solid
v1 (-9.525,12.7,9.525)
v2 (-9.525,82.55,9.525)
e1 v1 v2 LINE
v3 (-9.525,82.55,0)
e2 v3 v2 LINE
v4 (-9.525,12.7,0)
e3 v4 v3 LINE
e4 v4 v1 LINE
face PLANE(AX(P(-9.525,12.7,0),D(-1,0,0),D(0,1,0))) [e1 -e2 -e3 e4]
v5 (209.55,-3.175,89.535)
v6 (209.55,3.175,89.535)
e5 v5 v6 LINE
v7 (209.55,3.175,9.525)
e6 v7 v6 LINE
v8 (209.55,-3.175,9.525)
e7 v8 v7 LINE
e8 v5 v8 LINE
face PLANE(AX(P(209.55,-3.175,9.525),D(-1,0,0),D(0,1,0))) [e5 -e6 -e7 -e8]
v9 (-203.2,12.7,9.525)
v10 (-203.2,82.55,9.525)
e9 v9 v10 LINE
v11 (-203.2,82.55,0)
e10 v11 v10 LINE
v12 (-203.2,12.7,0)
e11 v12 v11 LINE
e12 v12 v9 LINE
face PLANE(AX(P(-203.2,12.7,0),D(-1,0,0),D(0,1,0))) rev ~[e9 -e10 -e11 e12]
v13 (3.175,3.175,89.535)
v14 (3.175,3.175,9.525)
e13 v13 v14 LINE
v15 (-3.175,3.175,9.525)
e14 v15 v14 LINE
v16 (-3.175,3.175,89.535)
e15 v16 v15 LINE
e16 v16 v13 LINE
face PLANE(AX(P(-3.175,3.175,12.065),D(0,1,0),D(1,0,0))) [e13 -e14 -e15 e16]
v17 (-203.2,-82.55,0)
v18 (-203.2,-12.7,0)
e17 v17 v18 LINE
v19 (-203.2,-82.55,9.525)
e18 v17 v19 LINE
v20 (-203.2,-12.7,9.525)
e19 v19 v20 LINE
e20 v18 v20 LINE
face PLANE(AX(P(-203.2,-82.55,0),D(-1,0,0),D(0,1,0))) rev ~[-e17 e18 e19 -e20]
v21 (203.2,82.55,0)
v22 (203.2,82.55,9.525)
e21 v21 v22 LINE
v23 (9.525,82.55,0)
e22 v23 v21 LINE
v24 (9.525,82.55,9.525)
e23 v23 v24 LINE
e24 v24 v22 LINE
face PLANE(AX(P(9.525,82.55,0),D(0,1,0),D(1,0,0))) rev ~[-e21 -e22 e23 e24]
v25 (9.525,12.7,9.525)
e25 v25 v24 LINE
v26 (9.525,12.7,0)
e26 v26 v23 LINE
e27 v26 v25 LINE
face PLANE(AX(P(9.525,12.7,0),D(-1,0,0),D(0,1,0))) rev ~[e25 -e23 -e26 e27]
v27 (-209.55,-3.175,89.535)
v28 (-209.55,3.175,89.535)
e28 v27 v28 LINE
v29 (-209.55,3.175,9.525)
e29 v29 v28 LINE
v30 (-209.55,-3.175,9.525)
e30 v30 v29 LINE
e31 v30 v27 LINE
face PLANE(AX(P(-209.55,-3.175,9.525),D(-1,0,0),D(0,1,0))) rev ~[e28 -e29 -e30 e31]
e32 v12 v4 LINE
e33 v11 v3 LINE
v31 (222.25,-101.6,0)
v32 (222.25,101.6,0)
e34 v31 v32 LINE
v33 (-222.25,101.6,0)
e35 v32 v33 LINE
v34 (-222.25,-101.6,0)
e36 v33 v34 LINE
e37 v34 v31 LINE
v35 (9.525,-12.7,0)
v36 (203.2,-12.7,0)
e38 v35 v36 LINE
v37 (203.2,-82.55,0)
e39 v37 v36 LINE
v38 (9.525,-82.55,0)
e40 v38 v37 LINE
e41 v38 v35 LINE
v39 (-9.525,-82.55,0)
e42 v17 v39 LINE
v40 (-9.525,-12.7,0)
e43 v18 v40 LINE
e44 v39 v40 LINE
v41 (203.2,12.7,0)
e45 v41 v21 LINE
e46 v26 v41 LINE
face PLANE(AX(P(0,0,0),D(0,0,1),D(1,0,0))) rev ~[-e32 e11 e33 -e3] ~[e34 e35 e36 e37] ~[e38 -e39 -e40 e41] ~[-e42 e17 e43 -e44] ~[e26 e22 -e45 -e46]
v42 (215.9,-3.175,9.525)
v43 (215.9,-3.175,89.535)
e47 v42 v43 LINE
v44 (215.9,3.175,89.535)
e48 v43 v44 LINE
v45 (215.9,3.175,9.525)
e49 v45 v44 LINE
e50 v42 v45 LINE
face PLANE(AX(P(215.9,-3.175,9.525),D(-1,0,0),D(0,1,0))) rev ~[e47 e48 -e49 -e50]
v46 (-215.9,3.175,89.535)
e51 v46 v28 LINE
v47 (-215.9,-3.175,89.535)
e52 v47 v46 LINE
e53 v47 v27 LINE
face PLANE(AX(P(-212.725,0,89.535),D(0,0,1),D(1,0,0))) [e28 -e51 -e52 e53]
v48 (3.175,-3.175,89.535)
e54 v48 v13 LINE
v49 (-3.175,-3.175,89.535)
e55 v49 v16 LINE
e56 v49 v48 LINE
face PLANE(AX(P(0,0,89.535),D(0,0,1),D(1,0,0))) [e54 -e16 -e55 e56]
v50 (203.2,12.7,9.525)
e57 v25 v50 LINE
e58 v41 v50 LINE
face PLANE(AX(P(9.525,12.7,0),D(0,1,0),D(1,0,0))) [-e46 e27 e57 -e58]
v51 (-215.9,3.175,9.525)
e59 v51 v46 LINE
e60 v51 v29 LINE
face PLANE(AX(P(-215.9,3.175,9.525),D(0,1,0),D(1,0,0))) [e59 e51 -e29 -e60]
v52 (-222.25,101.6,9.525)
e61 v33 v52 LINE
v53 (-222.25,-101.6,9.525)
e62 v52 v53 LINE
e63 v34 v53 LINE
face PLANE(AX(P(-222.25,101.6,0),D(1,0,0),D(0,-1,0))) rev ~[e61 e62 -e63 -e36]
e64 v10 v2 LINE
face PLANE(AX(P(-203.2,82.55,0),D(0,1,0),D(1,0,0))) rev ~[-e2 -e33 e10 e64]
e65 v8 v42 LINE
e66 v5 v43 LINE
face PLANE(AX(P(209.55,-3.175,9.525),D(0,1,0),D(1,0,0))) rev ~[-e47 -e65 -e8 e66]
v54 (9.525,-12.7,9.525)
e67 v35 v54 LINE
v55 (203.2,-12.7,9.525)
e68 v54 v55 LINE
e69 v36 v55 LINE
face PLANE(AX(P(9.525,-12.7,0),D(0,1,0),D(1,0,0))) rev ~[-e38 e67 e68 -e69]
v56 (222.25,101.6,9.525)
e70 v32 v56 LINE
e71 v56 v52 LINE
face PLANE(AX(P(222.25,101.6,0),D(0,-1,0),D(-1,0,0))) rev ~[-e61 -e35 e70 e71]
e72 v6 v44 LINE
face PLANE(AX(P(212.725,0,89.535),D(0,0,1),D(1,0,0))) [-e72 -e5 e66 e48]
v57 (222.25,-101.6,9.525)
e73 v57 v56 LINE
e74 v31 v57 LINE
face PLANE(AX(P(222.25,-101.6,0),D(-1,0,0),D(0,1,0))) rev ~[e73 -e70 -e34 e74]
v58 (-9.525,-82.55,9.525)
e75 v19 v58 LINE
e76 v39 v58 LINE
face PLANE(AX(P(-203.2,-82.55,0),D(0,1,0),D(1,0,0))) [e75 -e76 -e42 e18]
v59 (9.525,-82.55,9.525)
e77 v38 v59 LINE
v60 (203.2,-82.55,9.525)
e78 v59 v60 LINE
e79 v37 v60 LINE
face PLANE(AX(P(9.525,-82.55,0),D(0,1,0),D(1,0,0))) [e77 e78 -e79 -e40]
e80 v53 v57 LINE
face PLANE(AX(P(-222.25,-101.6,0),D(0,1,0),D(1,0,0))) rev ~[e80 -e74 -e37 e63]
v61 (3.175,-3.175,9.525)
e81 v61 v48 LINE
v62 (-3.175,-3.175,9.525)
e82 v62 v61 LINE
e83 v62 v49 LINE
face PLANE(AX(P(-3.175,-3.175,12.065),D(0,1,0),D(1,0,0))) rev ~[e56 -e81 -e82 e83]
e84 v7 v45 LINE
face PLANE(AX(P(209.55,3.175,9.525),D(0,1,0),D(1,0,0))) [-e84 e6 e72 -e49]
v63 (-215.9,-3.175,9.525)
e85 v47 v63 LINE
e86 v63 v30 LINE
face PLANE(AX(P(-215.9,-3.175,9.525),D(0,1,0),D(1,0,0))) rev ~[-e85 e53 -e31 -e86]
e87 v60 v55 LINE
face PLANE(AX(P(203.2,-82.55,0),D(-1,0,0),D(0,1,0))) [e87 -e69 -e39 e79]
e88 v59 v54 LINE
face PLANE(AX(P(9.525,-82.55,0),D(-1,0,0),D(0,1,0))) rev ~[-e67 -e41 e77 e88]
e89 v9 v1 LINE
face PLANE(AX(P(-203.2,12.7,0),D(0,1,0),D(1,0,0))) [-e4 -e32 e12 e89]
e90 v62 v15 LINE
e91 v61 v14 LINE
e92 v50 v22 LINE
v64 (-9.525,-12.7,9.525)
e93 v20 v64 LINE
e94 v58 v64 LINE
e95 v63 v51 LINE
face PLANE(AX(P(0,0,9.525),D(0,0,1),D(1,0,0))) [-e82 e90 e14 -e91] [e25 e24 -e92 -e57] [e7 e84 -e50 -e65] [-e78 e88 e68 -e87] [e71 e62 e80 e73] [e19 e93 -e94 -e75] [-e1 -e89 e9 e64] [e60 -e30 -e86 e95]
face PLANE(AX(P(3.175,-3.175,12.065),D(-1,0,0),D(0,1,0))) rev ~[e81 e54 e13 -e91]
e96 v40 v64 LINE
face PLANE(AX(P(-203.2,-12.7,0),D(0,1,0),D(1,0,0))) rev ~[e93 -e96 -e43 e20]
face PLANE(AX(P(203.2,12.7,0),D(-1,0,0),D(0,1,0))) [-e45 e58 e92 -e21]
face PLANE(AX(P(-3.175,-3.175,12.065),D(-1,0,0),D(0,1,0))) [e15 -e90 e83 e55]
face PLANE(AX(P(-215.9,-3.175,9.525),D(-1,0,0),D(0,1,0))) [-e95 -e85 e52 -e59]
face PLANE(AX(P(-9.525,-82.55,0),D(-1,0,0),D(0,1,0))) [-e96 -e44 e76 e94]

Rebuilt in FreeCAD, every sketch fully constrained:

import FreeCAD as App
import Part
import Sketcher

V = App.Vector
Q = App.Units.Quantity

doc = App.newDocument("Part")
body = doc.addObject("PartDesign::Body", "Body")

sketch1 = body.newObject("Sketcher::SketchObject", "Sketch")
sketch1.AttachmentSupport = (doc.getObject("XY_Plane"), [""])
sketch1.MapMode = "FlatFace"
sketch1.addGeometry([
    Part.LineSegment(V(222.25, -101.6, 0), V(222.25, 101.6, 0)),
    Part.LineSegment(V(222.25, 101.6, 0), V(-222.25, 101.6, 0)),
    Part.LineSegment(V(-222.25, 101.6, 0), V(-222.25, -101.6, 0)),
    Part.LineSegment(V(-222.25, -101.6, 0), V(222.25, -101.6, 0)),
    Part.LineSegment(V(-9.525, -82.55, 0), V(-203.2, -82.55, 0)),
    Part.LineSegment(V(-203.2, -82.55, 0), V(-203.2, -12.7, 0)),
    Part.LineSegment(V(-203.2, -12.7, 0), V(-9.525, -12.7, 0)),
    Part.LineSegment(V(-9.525, -12.7, 0), V(-9.525, -82.55, 0)),
    Part.LineSegment(V(203.2, -82.55, 0), V(9.525, -82.55, 0)),
    Part.LineSegment(V(9.525, -82.55, 0), V(9.525, -12.7, 0)),
    Part.LineSegment(V(9.525, -12.7, 0), V(203.2, -12.7, 0)),
    Part.LineSegment(V(203.2, -12.7, 0), V(203.2, -82.55, 0)),
    Part.LineSegment(V(-9.525, 12.7, 0), V(-203.2, 12.7, 0)),
    Part.LineSegment(V(-203.2, 12.7, 0), V(-203.2, 82.55, 0)),
    Part.LineSegment(V(-203.2, 82.55, 0), V(-9.525, 82.55, 0)),
    Part.LineSegment(V(-9.525, 82.55, 0), V(-9.525, 12.7, 0)),
    Part.LineSegment(V(203.2, 12.7, 0), V(9.525, 12.7, 0)),
    Part.LineSegment(V(9.525, 12.7, 0), V(9.525, 82.55, 0)),
    Part.LineSegment(V(9.525, 82.55, 0), V(203.2, 82.55, 0)),
    Part.LineSegment(V(203.2, 82.55, 0), V(203.2, 12.7, 0)),
], False)
sketch1.addConstraint([
    Sketcher.Constraint("Coincident", 0, 2, 1, 1),
    Sketcher.Constraint("Coincident", 1, 2, 2, 1),
    Sketcher.Constraint("Coincident", 2, 2, 3, 1),
    Sketcher.Constraint("Coincident", 3, 2, 0, 1),
    Sketcher.Constraint("Coincident", 4, 2, 5, 1),
    Sketcher.Constraint("Coincident", 5, 2, 6, 1),
    Sketcher.Constraint("Coincident", 6, 2, 7, 1),
    Sketcher.Constraint("Coincident", 7, 2, 4, 1),
    Sketcher.Constraint("Coincident", 8, 2, 9, 1),
    Sketcher.Constraint("Coincident", 9, 2, 10, 1),
    Sketcher.Constraint("Coincident", 10, 2, 11, 1),
    Sketcher.Constraint("Coincident", 11, 2, 8, 1),
    Sketcher.Constraint("Coincident", 12, 2, 13, 1),
    Sketcher.Constraint("Coincident", 13, 2, 14, 1),
    Sketcher.Constraint("Coincident", 14, 2, 15, 1),
    Sketcher.Constraint("Coincident", 15, 2, 12, 1),
    Sketcher.Constraint("Coincident", 16, 2, 17, 1),
    Sketcher.Constraint("Coincident", 17, 2, 18, 1),
    Sketcher.Constraint("Coincident", 18, 2, 19, 1),
    Sketcher.Constraint("Coincident", 19, 2, 16, 1),
    Sketcher.Constraint("Vertical", 0),
    Sketcher.Constraint("Horizontal", 1),
    Sketcher.Constraint("Vertical", 2),
    Sketcher.Constraint("Horizontal", 3),
    Sketcher.Constraint("Horizontal", 4),
    Sketcher.Constraint("Vertical", 5),
    Sketcher.Constraint("Horizontal", 6),
    Sketcher.Constraint("Vertical", 7),
    Sketcher.Constraint("Horizontal", 8),
    Sketcher.Constraint("Vertical", 9),
    Sketcher.Constraint("Horizontal", 10),
    Sketcher.Constraint("Vertical", 11),
    Sketcher.Constraint("Horizontal", 12),
    Sketcher.Constraint("Vertical", 13),
    Sketcher.Constraint("Horizontal", 14),
    Sketcher.Constraint("Vertical", 15),
    Sketcher.Constraint("Horizontal", 16),
    Sketcher.Constraint("Vertical", 17),
    Sketcher.Constraint("Horizontal", 18),
    Sketcher.Constraint("Vertical", 19),
    Sketcher.Constraint("Symmetric", 0, 2, 2, 2, -1, 1),
    Sketcher.Constraint("Symmetric", 10, 2, 12, 2, -1, 1),
    Sketcher.Constraint("Symmetric", 8, 2, 14, 2, -1, 1),
    Sketcher.Constraint("Symmetric", 6, 2, 16, 2, -1, 1),
    Sketcher.Constraint("Symmetric", 4, 2, 18, 2, -1, 1),
    Sketcher.Constraint("Symmetric", 7, 2, 8, 2, -2),
    Sketcher.Constraint("Symmetric", 5, 2, 10, 2, -2),
    Sketcher.Constraint("DistanceY", 0, 1, 0, 2, Q("8 in")),
    Sketcher.Constraint("DistanceX", 1, 2, 1, 1, Q("17.5 in")),
    Sketcher.Constraint("DistanceX", 4, 2, -1, 1, Q("8 in")),
    Sketcher.Constraint("DistanceY", 5, 2, 12, 2, Q("1 in")),
    Sketcher.Constraint("DistanceY", 5, 1, 5, 2, Q("2.75 in")),
    Sketcher.Constraint("DistanceX", 4, 2, 4, 1, Q("7.625 in")),
])
pad1 = body.newObject("PartDesign::Pad", "Pad")
pad1.Profile = sketch1
pad1.Length = Q("0.375 in")

sketch2 = body.newObject("Sketcher::SketchObject", "Sketch001")
sketch2.AttachmentSupport = (doc.getObject("XY_Plane"), [""])
sketch2.MapMode = "FlatFace"
sketch2.AttachmentOffset = App.Placement(V(0, 0, 0.375 * 25.4), App.Rotation())
sketch2.addGeometry([
    Part.LineSegment(V(-215.9, 3.175, 0), V(-215.9, -3.175, 0)),
    Part.LineSegment(V(-215.9, -3.175, 0), V(-209.55, -3.175, 0)),
    Part.LineSegment(V(-209.55, -3.175, 0), V(-209.55, 3.175, 0)),
    Part.LineSegment(V(-209.55, 3.175, 0), V(-215.9, 3.175, 0)),
    Part.LineSegment(V(209.55, 3.175, 0), V(209.55, -3.175, 0)),
    Part.LineSegment(V(209.55, -3.175, 0), V(215.9, -3.175, 0)),
    Part.LineSegment(V(215.9, -3.175, 0), V(215.9, 3.175, 0)),
    Part.LineSegment(V(215.9, 3.175, 0), V(209.55, 3.175, 0)),
    Part.LineSegment(V(-3.175, 3.175, 0), V(-3.175, -3.175, 0)),
    Part.LineSegment(V(-3.175, -3.175, 0), V(3.175, -3.175, 0)),
    Part.LineSegment(V(3.175, -3.175, 0), V(3.175, 3.175, 0)),
    Part.LineSegment(V(3.175, 3.175, 0), V(-3.175, 3.175, 0)),
], False)
sketch2.addConstraint([
    Sketcher.Constraint("Coincident", 0, 2, 1, 1),
    Sketcher.Constraint("Coincident", 1, 2, 2, 1),
    Sketcher.Constraint("Coincident", 2, 2, 3, 1),
    Sketcher.Constraint("Coincident", 3, 2, 0, 1),
    Sketcher.Constraint("Coincident", 4, 2, 5, 1),
    Sketcher.Constraint("Coincident", 5, 2, 6, 1),
    Sketcher.Constraint("Coincident", 6, 2, 7, 1),
    Sketcher.Constraint("Coincident", 7, 2, 4, 1),
    Sketcher.Constraint("Coincident", 8, 2, 9, 1),
    Sketcher.Constraint("Coincident", 9, 2, 10, 1),
    Sketcher.Constraint("Coincident", 10, 2, 11, 1),
    Sketcher.Constraint("Coincident", 11, 2, 8, 1),
    Sketcher.Constraint("Vertical", 0),
    Sketcher.Constraint("Horizontal", 1),
    Sketcher.Constraint("Vertical", 2),
    Sketcher.Constraint("Horizontal", 3),
    Sketcher.Constraint("Vertical", 4),
    Sketcher.Constraint("Horizontal", 5),
    Sketcher.Constraint("Vertical", 6),
    Sketcher.Constraint("Horizontal", 7),
    Sketcher.Constraint("Vertical", 8),
    Sketcher.Constraint("Horizontal", 9),
    Sketcher.Constraint("Vertical", 10),
    Sketcher.Constraint("Horizontal", 11),
    Sketcher.Constraint("Symmetric", 2, 2, 4, 2, -1, 1),
    Sketcher.Constraint("Symmetric", 0, 2, 6, 2, -1, 1),
    Sketcher.Constraint("Symmetric", 8, 2, 10, 2, -1, 1),
    Sketcher.Constraint("Horizontal", 1, 2, 4, 2),
    Sketcher.Constraint("Horizontal", 5, 2, 8, 2),
    Sketcher.Constraint("Equal", 7, 9),
    Sketcher.Constraint("Equal", 11, 0),
    Sketcher.Constraint("DistanceX", 0, 2, 5, 2, Q("17 in")),
    Sketcher.Constraint("DistanceX", 1, 1, 1, 2, Q("0.25 in")),
])
pad2 = body.newObject("PartDesign::Pad", "Pad001")
pad2.Profile = sketch2
pad2.Length = Q("0.1 in")

sketch3 = body.newObject("Sketcher::SketchObject", "Sketch002")
sketch3.AttachmentSupport = (doc.getObject("XY_Plane"), [""])
sketch3.MapMode = "FlatFace"
sketch3.AttachmentOffset = App.Placement(V(0, 0, 0.475 * 25.4), App.Rotation())
sketch3.addGeometry([
    Part.LineSegment(V(-3.175, 3.175, 0), V(-3.175, -3.175, 0)),
    Part.LineSegment(V(-3.175, -3.175, 0), V(3.175, -3.175, 0)),
    Part.LineSegment(V(3.175, -3.175, 0), V(3.175, 3.175, 0)),
    Part.LineSegment(V(3.175, 3.175, 0), V(-3.175, 3.175, 0)),
    Part.LineSegment(V(209.55, 3.175, 0), V(209.55, -3.175, 0)),
    Part.LineSegment(V(209.55, -3.175, 0), V(215.9, -3.175, 0)),
    Part.LineSegment(V(215.9, -3.175, 0), V(215.9, 3.175, 0)),
    Part.LineSegment(V(215.9, 3.175, 0), V(209.55, 3.175, 0)),
    Part.LineSegment(V(-215.9, 3.175, 0), V(-215.9, -3.175, 0)),
    Part.LineSegment(V(-215.9, -3.175, 0), V(-209.55, -3.175, 0)),
    Part.LineSegment(V(-209.55, -3.175, 0), V(-209.55, 3.175, 0)),
    Part.LineSegment(V(-209.55, 3.175, 0), V(-215.9, 3.175, 0)),
], False)
sketch3.addConstraint([
    Sketcher.Constraint("Coincident", 0, 2, 1, 1),
    Sketcher.Constraint("Coincident", 1, 2, 2, 1),
    Sketcher.Constraint("Coincident", 2, 2, 3, 1),
    Sketcher.Constraint("Coincident", 3, 2, 0, 1),
    Sketcher.Constraint("Coincident", 4, 2, 5, 1),
    Sketcher.Constraint("Coincident", 5, 2, 6, 1),
    Sketcher.Constraint("Coincident", 6, 2, 7, 1),
    Sketcher.Constraint("Coincident", 7, 2, 4, 1),
    Sketcher.Constraint("Coincident", 8, 2, 9, 1),
    Sketcher.Constraint("Coincident", 9, 2, 10, 1),
    Sketcher.Constraint("Coincident", 10, 2, 11, 1),
    Sketcher.Constraint("Coincident", 11, 2, 8, 1),
    Sketcher.Constraint("Vertical", 0),
    Sketcher.Constraint("Horizontal", 1),
    Sketcher.Constraint("Vertical", 2),
    Sketcher.Constraint("Horizontal", 3),
    Sketcher.Constraint("Vertical", 4),
    Sketcher.Constraint("Horizontal", 5),
    Sketcher.Constraint("Vertical", 6),
    Sketcher.Constraint("Horizontal", 7),
    Sketcher.Constraint("Vertical", 8),
    Sketcher.Constraint("Horizontal", 9),
    Sketcher.Constraint("Vertical", 10),
    Sketcher.Constraint("Horizontal", 11),
    Sketcher.Constraint("Symmetric", 0, 2, 2, 2, -1, 1),
    Sketcher.Constraint("Symmetric", 6, 2, 8, 2, -1, 1),
    Sketcher.Constraint("Symmetric", 4, 2, 10, 2, -1, 1),
    Sketcher.Constraint("Horizontal", 1, 2, 4, 2),
    Sketcher.Constraint("Horizontal", 3, 2, 6, 2),
    Sketcher.Constraint("Equal", 3, 5),
    Sketcher.Constraint("Equal", 11, 0),
    Sketcher.Constraint("DistanceX", 1, 1, 1, 2, Q("0.25 in")),
    Sketcher.Constraint("DistanceX", -1, 1, 5, 2, Q("8.5 in")),
])
pad3 = body.newObject("PartDesign::Pad", "Pad002")
pad3.Profile = sketch3
pad3.Length = Q("3.05 in")

doc.recompute()
